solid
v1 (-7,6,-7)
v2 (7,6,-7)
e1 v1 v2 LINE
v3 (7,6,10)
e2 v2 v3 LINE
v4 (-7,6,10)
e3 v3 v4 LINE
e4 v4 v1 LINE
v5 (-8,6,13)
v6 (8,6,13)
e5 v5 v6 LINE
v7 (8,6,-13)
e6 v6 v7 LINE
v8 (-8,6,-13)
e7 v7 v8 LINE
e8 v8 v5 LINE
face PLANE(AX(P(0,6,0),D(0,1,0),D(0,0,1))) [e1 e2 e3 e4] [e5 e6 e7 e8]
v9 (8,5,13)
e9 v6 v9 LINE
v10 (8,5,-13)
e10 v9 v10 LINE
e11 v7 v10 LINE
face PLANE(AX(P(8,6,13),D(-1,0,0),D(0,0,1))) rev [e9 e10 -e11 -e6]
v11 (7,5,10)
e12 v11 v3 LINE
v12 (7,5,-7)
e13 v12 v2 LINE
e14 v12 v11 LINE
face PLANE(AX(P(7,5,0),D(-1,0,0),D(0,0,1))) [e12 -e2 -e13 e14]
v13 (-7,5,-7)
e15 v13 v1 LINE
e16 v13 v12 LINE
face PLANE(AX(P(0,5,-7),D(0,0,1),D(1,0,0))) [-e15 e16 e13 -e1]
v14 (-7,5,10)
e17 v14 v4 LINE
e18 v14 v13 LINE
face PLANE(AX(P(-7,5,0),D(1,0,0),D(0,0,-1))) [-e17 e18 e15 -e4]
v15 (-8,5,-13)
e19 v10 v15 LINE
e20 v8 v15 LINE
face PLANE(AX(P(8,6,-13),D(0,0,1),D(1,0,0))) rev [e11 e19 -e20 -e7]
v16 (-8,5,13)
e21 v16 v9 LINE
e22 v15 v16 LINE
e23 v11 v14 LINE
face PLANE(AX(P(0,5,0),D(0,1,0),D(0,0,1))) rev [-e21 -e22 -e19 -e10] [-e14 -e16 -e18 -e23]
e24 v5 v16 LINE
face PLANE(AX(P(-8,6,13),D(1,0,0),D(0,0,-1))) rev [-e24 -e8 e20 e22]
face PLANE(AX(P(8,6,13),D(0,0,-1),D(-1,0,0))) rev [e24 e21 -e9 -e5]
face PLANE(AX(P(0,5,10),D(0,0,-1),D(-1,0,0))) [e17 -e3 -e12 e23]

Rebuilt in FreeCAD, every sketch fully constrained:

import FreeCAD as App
import Part
import Sketcher
from FreeCAD import Vector
Q = App.Units.Quantity

doc = App.newDocument("Part")
body = doc.addObject("PartDesign::Body", "Body")

# Sketch on XZ plane
sketch1 = body.newObject("Sketcher::SketchObject", "Sketch")
sketch1.AttachmentSupport = (doc.getObject("XZ_Plane"), [""])
sketch1.MapMode = "FlatFace"
sketch1.addGeometry([
    Part.LineSegment(Vector(-8, -13, 0), Vector(-8, 13, 0)),
    Part.LineSegment(Vector(-8, 13, 0), Vector(8, 13, 0)),
    Part.LineSegment(Vector(8, 13, 0), Vector(8, -13, 0)),
    Part.LineSegment(Vector(8, -13, 0), Vector(-8, -13, 0)),
], False)
sketch1.addConstraint([
    Sketcher.Constraint("Coincident", 0, 2, 1, 1),
    Sketcher.Constraint("Coincident", 1, 2, 2, 1),
    Sketcher.Constraint("Coincident", 2, 2, 3, 1),
    Sketcher.Constraint("Coincident", 3, 2, 0, 1),
    Sketcher.Constraint("Vertical", 0),
    Sketcher.Constraint("Horizontal", 1),
    Sketcher.Constraint("Vertical", 2),
    Sketcher.Constraint("Horizontal", 3),
    Sketcher.Constraint("Symmetric", 0, 2, 2, 2, -1, 1),
    Sketcher.Constraint("DistanceX", 1, 1, 1, 2, Q("16 mm")),
    Sketcher.Constraint("DistanceY", 0, 1, 0, 2, Q("26 mm")),
])
pad1 = body.newObject("PartDesign::Pad", "Pad")
pad1.Profile = sketch1
pad1.Length = 5
pad1.Reversed = True

# Sketch on XZ plane
sketch2 = body.newObject("Sketcher::SketchObject", "Sketch001")
sketch2.AttachmentSupport = (doc.getObject("XZ_Plane"), [""])
sketch2.MapMode = "FlatFace"
sketch2.AttachmentOffset = App.Placement(Vector(0, 0, -1), App.Rotation())
sketch2.addGeometry([
    Part.LineSegment(Vector(-7, -13, 0), Vector(-7, 12, 0)),
    Part.LineSegment(Vector(-7, 12, 0), Vector(7, 12, 0)),
    Part.LineSegment(Vector(7, 12, 0), Vector(7, -13, 0)),
    Part.LineSegment(Vector(7, -13, 0), Vector(-7, -13, 0)),
], False)
sketch2.addConstraint([
    Sketcher.Constraint("Coincident", 0, 2, 1, 1),
    Sketcher.Constraint("Coincident", 1, 2, 2, 1),
    Sketcher.Constraint("Coincident", 2, 2, 3, 1),
    Sketcher.Constraint("Coincident", 3, 2, 0, 1),
    Sketcher.Constraint("Vertical", 0),
    Sketcher.Constraint("Horizontal", 1),
    Sketcher.Constraint("Vertical", 2),
    Sketcher.Constraint("Horizontal", 3),
    Sketcher.Constraint("DistanceX", 1, 1, 1, 2, Q("14 mm")),
    Sketcher.Constraint("DistanceY", 0, 1, 0, 2, Q("25 mm")),
    Sketcher.Constraint("DistanceX", 0, 2, -1, 1, Q("7 mm")),
    Sketcher.Constraint("DistanceY", -1, 1, 0, 2, Q("12 mm")),
])
pocket1 = body.newObject("PartDesign::Pocket", "Pocket")
pocket1.Profile = sketch2
pocket1.Length = 10

# Sketch on XZ plane
sketch3 = body.newObject("Sketcher::SketchObject", "Sketch002")
sketch3.AttachmentSupport = (doc.getObject("XZ_Plane"), [""])
sketch3.MapMode = "FlatFace"
sketch3.addGeometry([
    Part.LineSegment(Vector(-8, 13, 0), Vector(-8, -13, 0)),
    Part.LineSegment(Vector(-8, -13, 0), Vector(8, -13, 0)),
    Part.LineSegment(Vector(8, -13, 0), Vector(8, 13, 0)),
    Part.LineSegment(Vector(8, 13, 0), Vector(-8, 13, 0)),
], False)
sketch3.addConstraint([
    Sketcher.Constraint("Coincident", 0, 2, 1, 1),
    Sketcher.Constraint("Coincident", 1, 2, 2, 1),
    Sketcher.Constraint("Coincident", 2, 2, 3, 1),
    Sketcher.Constraint("Coincident", 3, 2, 0, 1),
    Sketcher.Constraint("Vertical", 0),
    Sketcher.Constraint("Horizontal", 1),
    Sketcher.Constraint("Vertical", 2),
    Sketcher.Constraint("Horizontal", 3),
    Sketcher.Constraint("Symmetric", 0, 2, 2, 2, -1, 1),
    Sketcher.Constraint("DistanceX", 1, 1, 1, 2, Q("16 mm")),
    Sketcher.Constraint("DistanceY", 0, 2, 0, 1, Q("26 mm")),
])
pocket2 = body.newObject("PartDesign::Pocket", "Pocket001")
pocket2.Profile = sketch3
pocket2.Length = 5
body2 = doc.addObject("PartDesign::Body", "Body001")

# Sketch on XZ plane
sketch4 = body2.newObject("Sketcher::SketchObject", "Sketch003")
sketch4.AttachmentSupport = (doc.getObject("XZ_Plane001"), [""])
sketch4.MapMode = "FlatFace"
sketch4.AttachmentOffset = App.Placement(Vector(0, 0, -5), App.Rotation())
sketch4.addGeometry([
    Part.LineSegment(Vector(-8, -13, 0), Vector(-8, 13, 0)),
    Part.LineSegment(Vector(-8, 13, 0), Vector(8, 13, 0)),
    Part.LineSegment(Vector(8, 13, 0), Vector(8, -13, 0)),
    Part.LineSegment(Vector(8, -13, 0), Vector(-8, -13, 0)),
], False)
sketch4.addConstraint([
    Sketcher.Constraint("Coincident", 0, 2, 1, 1),
    Sketcher.Constraint("Coincident", 1, 2, 2, 1),
    Sketcher.Constraint("Coincident", 2, 2, 3, 1),
    Sketcher.Constraint("Coincident", 3, 2, 0, 1),
    Sketcher.Constraint("Vertical", 0),
    Sketcher.Constraint("Horizontal", 1),
    Sketcher.Constraint("Vertical", 2),
    Sketcher.Constraint("Horizontal", 3),
    Sketcher.Constraint("Symmetric", 0, 2, 2, 2, -1, 1),
    Sketcher.Constraint("DistanceX", 1, 1, 1, 2, Q("16 mm")),
    Sketcher.Constraint("DistanceY", 0, 1, 0, 2, Q("26 mm")),
])
pad2 = body2.newObject("PartDesign::Pad", "Pad001")
pad2.Profile = sketch4
pad2.Length = 1
pad2.Reversed = True

# Sketch on XZ plane
sketch5 = body2.newObject("Sketcher::SketchObject", "Sketch004")
sketch5.AttachmentSupport = (doc.getObject("XZ_Plane001"), [""])
sketch5.MapMode = "FlatFace"
sketch5.AttachmentOffset = App.Placement(Vector(0, 0, -6), App.Rotation())
sketch5.addGeometry([
    Part.LineSegment(Vector(-7, -7, 0), Vector(-7, 10, 0)),
    Part.LineSegment(Vector(-7, 10, 0), Vector(7, 10, 0)),
    Part.LineSegment(Vector(7, 10, 0), Vector(7, -7, 0)),
    Part.LineSegment(Vector(7, -7, 0), Vector(-7, -7, 0)),
], False)
sketch5.addConstraint([
    Sketcher.Constraint("Coincident", 0, 2, 1, 1),
    Sketcher.Constraint("Coincident", 1, 2, 2, 1),
    Sketcher.Constraint("Coincident", 2, 2, 3, 1),
    Sketcher.Constraint("Coincident", 3, 2, 0, 1),
    Sketcher.Constraint("Vertical", 0),
    Sketcher.Constraint("Horizontal", 1),
    Sketcher.Constraint("Vertical", 2),
    Sketcher.Constraint("Horizontal", 3),
    Sketcher.Constraint("DistanceX", 1, 1, 1, 2, Q("14 mm")),
    Sketcher.Constraint("DistanceY", 0, 1, 0, 2, Q("17 mm")),
    Sketcher.Constraint("DistanceX", 0, 2, -1, 1, Q("7 mm")),
    Sketcher.Constraint("DistanceY", -1, 1, 0, 2, Q("10 mm")),
])
pocket3 = body2.newObject("PartDesign::Pocket", "Pocket002")
pocket3.Profile = sketch5
pocket3.Length = 1
pocket3.Reversed = True

doc.recompute()
